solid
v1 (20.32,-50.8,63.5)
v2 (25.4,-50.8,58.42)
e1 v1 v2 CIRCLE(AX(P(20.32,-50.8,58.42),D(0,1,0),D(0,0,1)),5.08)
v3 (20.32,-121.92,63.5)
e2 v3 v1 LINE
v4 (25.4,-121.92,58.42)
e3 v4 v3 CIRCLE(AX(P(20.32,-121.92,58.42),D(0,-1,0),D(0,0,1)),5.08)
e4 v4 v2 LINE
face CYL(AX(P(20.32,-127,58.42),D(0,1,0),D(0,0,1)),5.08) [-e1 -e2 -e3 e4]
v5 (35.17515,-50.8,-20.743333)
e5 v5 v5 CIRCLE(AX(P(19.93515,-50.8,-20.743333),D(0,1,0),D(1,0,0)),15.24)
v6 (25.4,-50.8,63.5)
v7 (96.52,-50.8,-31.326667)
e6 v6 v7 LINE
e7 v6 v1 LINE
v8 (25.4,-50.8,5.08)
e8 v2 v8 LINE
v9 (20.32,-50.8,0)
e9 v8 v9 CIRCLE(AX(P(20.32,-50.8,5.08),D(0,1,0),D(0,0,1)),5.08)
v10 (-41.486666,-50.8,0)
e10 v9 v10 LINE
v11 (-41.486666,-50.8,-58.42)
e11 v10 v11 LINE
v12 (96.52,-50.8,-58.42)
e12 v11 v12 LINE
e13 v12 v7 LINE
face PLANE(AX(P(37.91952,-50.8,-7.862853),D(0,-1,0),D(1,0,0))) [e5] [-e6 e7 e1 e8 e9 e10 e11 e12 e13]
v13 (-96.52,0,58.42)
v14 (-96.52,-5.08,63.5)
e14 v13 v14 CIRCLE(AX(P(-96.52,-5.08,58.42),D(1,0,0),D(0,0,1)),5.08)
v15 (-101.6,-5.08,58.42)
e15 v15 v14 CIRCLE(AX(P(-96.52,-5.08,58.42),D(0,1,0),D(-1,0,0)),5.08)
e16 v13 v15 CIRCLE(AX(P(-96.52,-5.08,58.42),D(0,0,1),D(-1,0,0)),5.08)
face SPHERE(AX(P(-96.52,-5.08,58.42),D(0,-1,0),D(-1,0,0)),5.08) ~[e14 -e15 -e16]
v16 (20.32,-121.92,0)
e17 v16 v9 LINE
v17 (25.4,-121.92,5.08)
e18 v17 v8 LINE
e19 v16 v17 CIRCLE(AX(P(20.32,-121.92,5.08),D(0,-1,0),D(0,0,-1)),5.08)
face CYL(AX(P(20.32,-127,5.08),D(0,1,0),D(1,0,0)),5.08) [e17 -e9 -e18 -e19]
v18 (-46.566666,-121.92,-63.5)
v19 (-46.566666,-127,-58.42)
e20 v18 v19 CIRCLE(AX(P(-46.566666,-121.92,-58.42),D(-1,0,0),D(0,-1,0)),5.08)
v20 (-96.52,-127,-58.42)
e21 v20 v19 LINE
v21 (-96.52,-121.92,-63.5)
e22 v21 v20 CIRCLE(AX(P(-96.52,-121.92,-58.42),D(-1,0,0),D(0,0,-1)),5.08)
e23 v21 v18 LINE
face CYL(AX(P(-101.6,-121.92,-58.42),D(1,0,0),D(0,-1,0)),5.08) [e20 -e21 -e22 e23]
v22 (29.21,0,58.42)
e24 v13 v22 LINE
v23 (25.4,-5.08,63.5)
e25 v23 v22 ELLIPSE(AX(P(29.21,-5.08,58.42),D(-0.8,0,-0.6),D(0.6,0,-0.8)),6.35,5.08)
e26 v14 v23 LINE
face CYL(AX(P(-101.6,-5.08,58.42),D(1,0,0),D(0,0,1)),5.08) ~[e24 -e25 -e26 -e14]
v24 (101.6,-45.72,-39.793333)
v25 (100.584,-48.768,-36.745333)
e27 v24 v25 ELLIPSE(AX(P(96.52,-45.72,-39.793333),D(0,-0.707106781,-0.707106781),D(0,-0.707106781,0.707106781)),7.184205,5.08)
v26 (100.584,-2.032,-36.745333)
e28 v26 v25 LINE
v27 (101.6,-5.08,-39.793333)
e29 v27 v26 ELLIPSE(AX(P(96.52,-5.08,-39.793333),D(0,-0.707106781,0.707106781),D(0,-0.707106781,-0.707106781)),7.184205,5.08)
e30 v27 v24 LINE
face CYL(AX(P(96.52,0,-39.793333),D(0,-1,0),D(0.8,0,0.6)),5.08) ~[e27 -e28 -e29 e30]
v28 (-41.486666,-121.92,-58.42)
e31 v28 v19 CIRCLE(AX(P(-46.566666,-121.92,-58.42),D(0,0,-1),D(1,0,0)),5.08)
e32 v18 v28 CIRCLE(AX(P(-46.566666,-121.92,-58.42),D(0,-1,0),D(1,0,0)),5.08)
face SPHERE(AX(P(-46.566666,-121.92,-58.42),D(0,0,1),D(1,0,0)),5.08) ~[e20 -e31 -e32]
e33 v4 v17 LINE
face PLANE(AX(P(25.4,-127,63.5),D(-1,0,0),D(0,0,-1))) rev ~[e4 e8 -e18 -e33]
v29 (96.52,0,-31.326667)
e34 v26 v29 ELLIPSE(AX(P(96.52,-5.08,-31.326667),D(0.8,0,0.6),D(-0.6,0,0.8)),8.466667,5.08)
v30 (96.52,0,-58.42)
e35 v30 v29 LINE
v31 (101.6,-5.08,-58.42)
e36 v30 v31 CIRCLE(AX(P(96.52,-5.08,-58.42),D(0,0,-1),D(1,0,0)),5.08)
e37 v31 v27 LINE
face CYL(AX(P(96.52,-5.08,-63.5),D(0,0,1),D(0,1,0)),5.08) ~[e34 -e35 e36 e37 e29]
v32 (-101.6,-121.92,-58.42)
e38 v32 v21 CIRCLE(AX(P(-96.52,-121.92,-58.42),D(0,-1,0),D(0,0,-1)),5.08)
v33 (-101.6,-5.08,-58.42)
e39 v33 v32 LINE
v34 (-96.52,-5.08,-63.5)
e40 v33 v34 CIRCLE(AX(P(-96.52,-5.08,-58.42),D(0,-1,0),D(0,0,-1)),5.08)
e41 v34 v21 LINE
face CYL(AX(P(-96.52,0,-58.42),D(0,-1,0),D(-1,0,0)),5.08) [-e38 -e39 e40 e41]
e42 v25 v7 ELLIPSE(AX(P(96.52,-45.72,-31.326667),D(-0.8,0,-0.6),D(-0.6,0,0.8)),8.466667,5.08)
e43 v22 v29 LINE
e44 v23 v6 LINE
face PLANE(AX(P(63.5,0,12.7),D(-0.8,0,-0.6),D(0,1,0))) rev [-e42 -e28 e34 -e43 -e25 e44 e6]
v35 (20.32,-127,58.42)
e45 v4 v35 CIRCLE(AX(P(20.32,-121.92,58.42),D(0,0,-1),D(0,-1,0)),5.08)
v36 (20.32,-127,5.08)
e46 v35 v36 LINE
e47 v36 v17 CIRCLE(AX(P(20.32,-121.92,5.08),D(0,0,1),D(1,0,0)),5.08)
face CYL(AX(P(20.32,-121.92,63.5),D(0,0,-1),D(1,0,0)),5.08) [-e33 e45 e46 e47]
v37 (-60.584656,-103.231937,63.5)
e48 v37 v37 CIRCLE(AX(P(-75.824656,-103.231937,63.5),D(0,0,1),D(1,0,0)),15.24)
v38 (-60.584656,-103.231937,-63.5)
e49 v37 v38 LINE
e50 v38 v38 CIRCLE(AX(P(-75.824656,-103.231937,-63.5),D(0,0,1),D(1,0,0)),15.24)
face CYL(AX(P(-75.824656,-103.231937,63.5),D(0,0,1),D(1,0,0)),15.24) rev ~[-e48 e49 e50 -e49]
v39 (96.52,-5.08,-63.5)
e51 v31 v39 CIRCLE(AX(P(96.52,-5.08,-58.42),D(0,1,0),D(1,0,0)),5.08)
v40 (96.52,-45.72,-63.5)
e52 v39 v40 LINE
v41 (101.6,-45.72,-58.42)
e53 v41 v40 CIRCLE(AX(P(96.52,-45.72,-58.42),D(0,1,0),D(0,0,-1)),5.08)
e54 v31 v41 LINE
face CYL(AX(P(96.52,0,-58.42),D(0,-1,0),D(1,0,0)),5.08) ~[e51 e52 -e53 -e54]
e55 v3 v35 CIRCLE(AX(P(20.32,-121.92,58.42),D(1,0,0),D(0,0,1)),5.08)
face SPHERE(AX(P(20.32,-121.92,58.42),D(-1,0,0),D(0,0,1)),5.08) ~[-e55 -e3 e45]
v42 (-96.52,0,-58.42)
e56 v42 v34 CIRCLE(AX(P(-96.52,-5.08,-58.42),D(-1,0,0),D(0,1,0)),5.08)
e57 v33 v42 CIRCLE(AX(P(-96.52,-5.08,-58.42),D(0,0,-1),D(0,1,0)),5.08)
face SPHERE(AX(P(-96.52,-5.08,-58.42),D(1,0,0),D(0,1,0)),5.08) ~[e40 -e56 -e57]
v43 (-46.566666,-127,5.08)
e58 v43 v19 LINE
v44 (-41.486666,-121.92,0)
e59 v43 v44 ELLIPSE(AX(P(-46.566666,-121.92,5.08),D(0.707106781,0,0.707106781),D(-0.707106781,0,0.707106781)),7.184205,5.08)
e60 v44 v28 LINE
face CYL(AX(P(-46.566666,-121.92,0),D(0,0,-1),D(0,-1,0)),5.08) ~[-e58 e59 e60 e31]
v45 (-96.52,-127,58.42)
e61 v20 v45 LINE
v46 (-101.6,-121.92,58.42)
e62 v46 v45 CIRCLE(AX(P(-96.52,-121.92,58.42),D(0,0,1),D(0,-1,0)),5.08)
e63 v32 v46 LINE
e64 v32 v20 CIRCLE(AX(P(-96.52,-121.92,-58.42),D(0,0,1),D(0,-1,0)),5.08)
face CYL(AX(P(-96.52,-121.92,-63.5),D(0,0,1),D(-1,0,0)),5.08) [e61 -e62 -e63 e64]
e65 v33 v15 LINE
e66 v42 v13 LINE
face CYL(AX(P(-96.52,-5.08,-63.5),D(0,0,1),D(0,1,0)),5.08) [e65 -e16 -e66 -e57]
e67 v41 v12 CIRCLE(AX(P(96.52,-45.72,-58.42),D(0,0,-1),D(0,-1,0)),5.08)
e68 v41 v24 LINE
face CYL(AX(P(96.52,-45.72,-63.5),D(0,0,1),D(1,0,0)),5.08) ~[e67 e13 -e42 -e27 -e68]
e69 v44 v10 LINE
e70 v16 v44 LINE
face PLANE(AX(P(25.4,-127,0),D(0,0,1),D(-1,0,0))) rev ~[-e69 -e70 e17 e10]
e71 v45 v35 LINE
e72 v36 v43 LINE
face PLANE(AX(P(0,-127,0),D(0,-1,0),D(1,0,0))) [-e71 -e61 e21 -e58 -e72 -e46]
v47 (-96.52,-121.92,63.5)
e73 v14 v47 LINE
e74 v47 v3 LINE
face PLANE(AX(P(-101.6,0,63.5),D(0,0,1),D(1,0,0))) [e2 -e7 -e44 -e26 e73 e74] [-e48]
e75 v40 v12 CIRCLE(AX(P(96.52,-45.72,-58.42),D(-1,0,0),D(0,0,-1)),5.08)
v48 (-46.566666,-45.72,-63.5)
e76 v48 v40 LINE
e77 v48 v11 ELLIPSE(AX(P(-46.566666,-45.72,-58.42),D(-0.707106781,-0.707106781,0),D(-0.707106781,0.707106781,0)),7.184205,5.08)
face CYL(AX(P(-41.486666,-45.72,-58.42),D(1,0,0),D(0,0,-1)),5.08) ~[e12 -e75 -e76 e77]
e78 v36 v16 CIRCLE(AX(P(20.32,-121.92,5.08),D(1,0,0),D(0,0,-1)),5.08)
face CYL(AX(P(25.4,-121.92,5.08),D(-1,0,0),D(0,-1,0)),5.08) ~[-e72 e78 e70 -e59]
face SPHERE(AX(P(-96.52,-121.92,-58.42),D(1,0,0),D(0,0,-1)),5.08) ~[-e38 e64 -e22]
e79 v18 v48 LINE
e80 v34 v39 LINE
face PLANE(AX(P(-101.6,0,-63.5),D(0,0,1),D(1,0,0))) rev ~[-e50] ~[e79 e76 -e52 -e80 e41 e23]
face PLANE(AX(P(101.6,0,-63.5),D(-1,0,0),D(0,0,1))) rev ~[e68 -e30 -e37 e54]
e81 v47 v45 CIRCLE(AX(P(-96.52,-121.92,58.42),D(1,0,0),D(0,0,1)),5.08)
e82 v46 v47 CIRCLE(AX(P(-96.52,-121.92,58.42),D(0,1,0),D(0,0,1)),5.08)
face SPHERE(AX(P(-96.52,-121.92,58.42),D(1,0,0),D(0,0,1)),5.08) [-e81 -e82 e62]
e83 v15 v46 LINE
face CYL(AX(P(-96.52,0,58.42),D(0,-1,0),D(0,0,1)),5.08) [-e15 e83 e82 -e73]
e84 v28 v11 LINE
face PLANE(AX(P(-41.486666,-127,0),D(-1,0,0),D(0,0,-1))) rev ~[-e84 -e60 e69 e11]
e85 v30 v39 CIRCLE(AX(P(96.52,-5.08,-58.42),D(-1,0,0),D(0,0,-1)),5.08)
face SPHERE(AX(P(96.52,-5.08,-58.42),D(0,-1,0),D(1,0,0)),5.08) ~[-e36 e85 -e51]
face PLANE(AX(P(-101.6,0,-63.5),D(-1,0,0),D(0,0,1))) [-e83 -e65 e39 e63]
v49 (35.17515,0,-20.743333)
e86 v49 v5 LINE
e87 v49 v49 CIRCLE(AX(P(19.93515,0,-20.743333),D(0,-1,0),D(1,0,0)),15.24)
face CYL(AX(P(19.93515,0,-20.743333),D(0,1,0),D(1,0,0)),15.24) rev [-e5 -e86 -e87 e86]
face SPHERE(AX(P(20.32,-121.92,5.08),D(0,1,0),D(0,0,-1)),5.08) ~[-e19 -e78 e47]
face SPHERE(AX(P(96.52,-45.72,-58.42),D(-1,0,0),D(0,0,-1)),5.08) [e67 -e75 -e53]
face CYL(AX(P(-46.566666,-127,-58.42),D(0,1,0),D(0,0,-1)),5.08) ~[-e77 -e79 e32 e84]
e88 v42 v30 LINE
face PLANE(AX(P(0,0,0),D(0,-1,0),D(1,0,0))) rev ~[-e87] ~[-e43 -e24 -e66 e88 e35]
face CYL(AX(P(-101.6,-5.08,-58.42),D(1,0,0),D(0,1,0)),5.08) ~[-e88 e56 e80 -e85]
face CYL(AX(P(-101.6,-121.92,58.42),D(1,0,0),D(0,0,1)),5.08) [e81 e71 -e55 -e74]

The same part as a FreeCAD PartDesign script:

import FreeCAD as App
import Part
import Sketcher
Q = App.Units.Quantity


def edges_at(feature, points):
    """Names of the edges that pass closest to the given points."""
    edges = feature.Shape.Edges
    near = lambda p: min(range(len(edges)), key=lambda i: edges[i].distToShape(Part.Vertex(*p))[0])
    return sorted({f"Edge{near(p) + 1}" for p in points})


def add_polygon(sketch, points):
    """Adds a closed chain of lines whose ends are joined by coincident constraints."""
    first, n = sketch.GeometryCount, len(points)
    for a, b in zip(points, points[1:] + points[:1]):
        sketch.addGeometry(Part.LineSegment(App.Vector(*a, 0), App.Vector(*b, 0)), False)
    for i in range(n):
        sketch.addConstraint(Sketcher.Constraint("Coincident", first + i, 2, first + (i + 1) % n, 1))

doc = App.newDocument("Part")
body = doc.addObject("PartDesign::Body", "Body")

sketch1 = doc.addObject("Sketcher::SketchObject", "Sketch")
body.addObject(sketch1)
sketch1.AttachmentSupport = (doc.XZ_Plane, [""])
sketch1.MapMode = "FlatFace"
add_polygon(sketch1, [(-101.6, 63.5), (-101.6, -63.5), (101.6, -63.5), (101.6, 63.5)])
sketch1.addConstraint([
    Sketcher.Constraint("Vertical", 0),
    Sketcher.Constraint("Horizontal", 1),
    Sketcher.Constraint("Vertical", 2),
    Sketcher.Constraint("Horizontal", 3),
    Sketcher.Constraint("Symmetric", 0, 2, 2, 2, -1, 1),
    Sketcher.Constraint("DistanceX", 1, 1, 1, 2, Q("8 in")),
    Sketcher.Constraint("DistanceY", 0, 2, 0, 1, Q("5 in")),
])
pad1 = doc.addObject("PartDesign::Pad", "Pad")
body.addObject(pad1)
pad1.Profile = sketch1
pad1.Length = Q("5 in")

sketch2 = doc.addObject("Sketcher::SketchObject", "Sketch001")
body.addObject(sketch2)
sketch2.AttachmentSupport = (doc.XZ_Plane, [""])
sketch2.MapMode = "FlatFace"
sketch2.AttachmentOffset = App.Placement(App.Vector(0, 0, 5 * 25.4), App.Rotation())
add_polygon(sketch2, [(101.6, 63.5), (25.4, 63.5), (25.4, 0), (-41.486666, 0), (-41.486666, -63.5), (101.6, -63.5)])
sketch2.addConstraint([
    Sketcher.Constraint("Horizontal", 0),
    Sketcher.Constraint("Vertical", 1),
    Sketcher.Constraint("Horizontal", 2),
    Sketcher.Constraint("Vertical", 3),
    Sketcher.Constraint("Horizontal", 4),
    Sketcher.Constraint("Vertical", 5),
    Sketcher.Constraint("PointOnObject", 1, 2, -1),
    Sketcher.Constraint("Equal", 1, 3),
    Sketcher.Constraint("DistanceX", 0, 2, 0, 1, Q("3 in")),
    Sketcher.Constraint("DistanceY", 5, 1, 5, 2, Q("5 in")),
    Sketcher.Constraint("DistanceX", -1, 1, 0, 2, Q("1 in")),
    Sketcher.Constraint("DistanceX", 2, 2, 2, 1, 66.886666),
])
pocket1 = doc.addObject("PartDesign::Pocket", "Pocket")
body.addObject(pocket1)
pocket1.Profile = sketch2
pocket1.Length = Q("3 in")
doc.recompute()

chamfer = doc.addObject("PartDesign::Chamfer", "Chamfer")
body.addObject(chamfer)
chamfer.Base = (pocket1, edges_at(pocket1, [(101.6, -25.4, 63.5)]))
chamfer.ChamferType = "Two distances"
chamfer.Size = Q("3 in")
chamfer.Size2 = Q("4 in")
doc.recompute()

fillet = doc.addObject("PartDesign::Fillet", "Fillet")
body.addObject(fillet)
fillet.Base = (chamfer, edges_at(chamfer, [
    (-38.1, -127, 63.5),
    (25.4, -88.9, 63.5),
    (25.4, -88.9, 0),
    (-8.043, -127, 0),
    (-101.6, -63.5, 63.5),
    (-41.487, -127, -31.75),
    (-41.487, -88.9, -63.5),
    (-71.543, -127, -63.5),
    (30.057, -50.8, -63.5),
    (101.6, -25.4, -63.5),
    (101.6, -50.8, -50.8),
    (101.6, 0, -50.8),
    (101.6, -25.4, -38.1),
    (0, 0, -63.5),
    (-101.6, 0, 0),
    (-101.6, -63.5, -63.5),
    (25.4, -127, 31.75),
    (-101.6, -127, 0),
    (-38.1, 0, 63.5),
]))
fillet.Radius = Q("0.2 in")

sketch3 = doc.addObject("Sketcher::SketchObject", "Sketch002")
body.addObject(sketch3)
sketch3.AttachmentSupport = (doc.XZ_Plane, [""])
sketch3.MapMode = "FlatFace"
sketch3.addGeometry(Part.Circle(App.Vector(19.93515, -20.743333, 0), App.Vector(0, 0, 1), 15.24), False)
sketch3.addConstraint([
    Sketcher.Constraint("Diameter", 0, Q("1.2 in")),
    Sketcher.Constraint("DistanceX", -1, 1, 0, 3, 19.93515),
    Sketcher.Constraint("DistanceY", 0, 3, -1, 1, 20.743333),
])
pocket2 = doc.addObject("PartDesign::Pocket", "Pocket001")
body.addObject(pocket2)
pocket2.Profile = sketch3
pocket2.Type = "ThroughAll"
pocket2.Midplane = True

sketch4 = doc.addObject("Sketcher::SketchObject", "Sketch003")
body.addObject(sketch4)
sketch4.AttachmentSupport = (doc.XY_Plane, [""])
sketch4.MapMode = "FlatFace"
sketch4.AttachmentOffset = App.Placement(App.Vector(0, 0, 2.5 * 25.4), App.Rotation())
sketch4.addGeometry(Part.Circle(App.Vector(-75.824656, -103.231937, 0), App.Vector(0, 0, 1), 15.24), False)
sketch4.addConstraint([
    Sketcher.Constraint("Diameter", 0, Q("1.2 in")),
    Sketcher.Constraint("DistanceX", 0, 3, -1, 1, 75.824656),
    Sketcher.Constraint("DistanceY", 0, 3, -1, 1, 103.231937),
])
pocket3 = doc.addObject("PartDesign::Pocket", "Pocket002")
body.addObject(pocket3)
pocket3.Profile = sketch4
pocket3.Type = "ThroughAll"
pocket3.Midplane = True

doc.recompute()
